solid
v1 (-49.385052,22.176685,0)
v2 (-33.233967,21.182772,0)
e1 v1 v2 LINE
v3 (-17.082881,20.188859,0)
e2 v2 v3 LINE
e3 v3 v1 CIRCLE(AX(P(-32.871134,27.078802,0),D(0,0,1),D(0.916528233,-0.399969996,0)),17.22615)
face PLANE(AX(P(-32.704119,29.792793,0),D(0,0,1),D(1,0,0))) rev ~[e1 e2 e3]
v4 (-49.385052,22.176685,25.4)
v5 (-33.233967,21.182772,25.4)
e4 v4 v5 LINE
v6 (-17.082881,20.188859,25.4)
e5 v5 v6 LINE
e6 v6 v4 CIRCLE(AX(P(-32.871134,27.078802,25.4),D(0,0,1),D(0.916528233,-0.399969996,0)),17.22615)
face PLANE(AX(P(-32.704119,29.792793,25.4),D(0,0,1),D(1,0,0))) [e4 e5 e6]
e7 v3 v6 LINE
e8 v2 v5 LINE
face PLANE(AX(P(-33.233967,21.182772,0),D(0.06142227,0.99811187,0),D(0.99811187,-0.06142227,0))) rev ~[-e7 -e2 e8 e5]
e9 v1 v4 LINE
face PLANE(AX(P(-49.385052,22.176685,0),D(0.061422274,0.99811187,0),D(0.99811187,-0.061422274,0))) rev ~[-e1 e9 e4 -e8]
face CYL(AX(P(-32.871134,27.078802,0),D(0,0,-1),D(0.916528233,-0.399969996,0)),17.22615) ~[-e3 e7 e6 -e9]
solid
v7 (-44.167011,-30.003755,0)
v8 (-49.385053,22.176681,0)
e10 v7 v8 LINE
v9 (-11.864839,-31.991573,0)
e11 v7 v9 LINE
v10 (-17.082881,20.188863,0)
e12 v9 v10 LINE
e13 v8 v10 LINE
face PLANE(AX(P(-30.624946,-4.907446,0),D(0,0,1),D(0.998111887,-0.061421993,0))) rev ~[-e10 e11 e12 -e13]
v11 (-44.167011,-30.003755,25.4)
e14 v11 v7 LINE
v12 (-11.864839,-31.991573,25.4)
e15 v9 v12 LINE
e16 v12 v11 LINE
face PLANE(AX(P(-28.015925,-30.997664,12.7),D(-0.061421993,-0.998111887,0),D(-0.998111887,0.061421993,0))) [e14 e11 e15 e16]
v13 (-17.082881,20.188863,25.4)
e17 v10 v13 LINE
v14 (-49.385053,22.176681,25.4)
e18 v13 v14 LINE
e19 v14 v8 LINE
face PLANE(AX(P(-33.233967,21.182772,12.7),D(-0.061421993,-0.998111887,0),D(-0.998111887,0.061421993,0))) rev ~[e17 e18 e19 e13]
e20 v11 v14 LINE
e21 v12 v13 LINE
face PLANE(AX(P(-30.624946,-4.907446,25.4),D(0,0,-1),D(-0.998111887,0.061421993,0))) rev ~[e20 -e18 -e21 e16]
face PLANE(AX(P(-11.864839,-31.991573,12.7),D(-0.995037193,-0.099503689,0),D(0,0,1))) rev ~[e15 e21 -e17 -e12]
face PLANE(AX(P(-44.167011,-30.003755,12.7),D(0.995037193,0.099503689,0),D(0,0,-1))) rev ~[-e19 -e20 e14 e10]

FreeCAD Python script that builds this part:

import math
import FreeCAD as App
import Part
import Sketcher
Q = App.Units.Quantity

doc = App.newDocument("Part")
params = doc.addObject("Spreadsheet::Sheet", "Params")
for row, (alias, value) in enumerate([
    ("pad1_length", "1 in"),
    ("sketch2_height", "1 in"),
], start=1):
    params.set(f"A{row}", alias)
    params.set(f"B{row}", "=" + value)
    params.setAlias(f"B{row}", alias)

body = doc.addObject("PartDesign::Body", "Body")

sketch1 = body.newObject("Sketcher::SketchObject", "Sketch")
sketch1.AttachmentSupport = (doc.getObject("XY_Plane"), [""])
sketch1.MapMode = "FlatFace"
sketch1.addGeometry(Part.ArcOfCircle(Part.Circle(App.Vector(-33, 27, 0), App.Vector(0, 0, 1), 17), math.radians(-24), math.radians(197)), False)
sketch1.addGeometry(Part.LineSegment(App.Vector(-49, 22, 0), App.Vector(-33, 21, 0)), False)
sketch1.addGeometry(Part.LineSegment(App.Vector(-33, 21, 0), App.Vector(-17, 20, 0)), False)
sketch1.addConstraint(Sketcher.Constraint("Coincident", 0, 2, 1, 1))
sketch1.addConstraint(Sketcher.Constraint("Coincident", 1, 2, 2, 1))
sketch1.addConstraint(Sketcher.Constraint("Coincident", 2, 2, 0, 1))
sketch1.addConstraint(Sketcher.Constraint("Parallel", 1, 2))
sketch1.addConstraint(Sketcher.Constraint("Equal", 1, 2))
sketch1.addConstraint(Sketcher.Constraint("Radius", 0, Q("17.22615 mm")))
sketch1.addConstraint(Sketcher.Constraint("Distance", 1, Q("16.181638 mm")))
sketch1.addConstraint(Sketcher.Constraint("DistanceX", 0, 2, -1, 1, Q("49.385052 mm")))
sketch1.addConstraint(Sketcher.Constraint("DistanceY", -1, 1, 1, 2, Q("21.182772 mm")))
sketch1.addConstraint(Sketcher.Constraint("DistanceX", 2, 2, -1, 1, Q("17.082881 mm")))
pad1 = body.newObject("PartDesign::Pad", "Pad")
pad1.Profile = sketch1
pad1.setExpression("Length", "Params.pad1_length")
body2 = doc.addObject("PartDesign::Body", "Body001")

sketch2 = body2.newObject("Sketcher::SketchObject", "Sketch001")
sketch2.Placement = App.Placement(App.Vector(-33.233967, 21.182772, 12.7), App.Rotation(App.Vector(0.998111887, -0.061421993, 0), App.Vector(0, 0, 1), App.Vector(-0.061421993, -0.998111887, 0), "ZXY"))
sketch2.addGeometry(Part.LineSegment(App.Vector(-16, 13, 0), App.Vector(-16, -13, 0)), False)
sketch2.addGeometry(Part.LineSegment(App.Vector(-16, -13, 0), App.Vector(16, -13, 0)), False)
sketch2.addGeometry(Part.LineSegment(App.Vector(16, -13, 0), App.Vector(16, 13, 0)), False)
sketch2.addGeometry(Part.LineSegment(App.Vector(16, 13, 0), App.Vector(-16, 13, 0)), False)
sketch2.addConstraint(Sketcher.Constraint("Coincident", 0, 2, 1, 1))
sketch2.addConstraint(Sketcher.Constraint("Coincident", 1, 2, 2, 1))
sketch2.addConstraint(Sketcher.Constraint("Coincident", 2, 2, 3, 1))
sketch2.addConstraint(Sketcher.Constraint("Coincident", 3, 2, 0, 1))
sketch2.addConstraint(Sketcher.Constraint("Vertical", 0))
sketch2.addConstraint(Sketcher.Constraint("Horizontal", 1))
sketch2.addConstraint(Sketcher.Constraint("Vertical", 2))
sketch2.addConstraint(Sketcher.Constraint("Horizontal", 3))
sketch2.addConstraint(Sketcher.Constraint("Symmetric", 0, 2, 2, 2, -1, 1))
sketch2.addConstraint(Sketcher.Constraint("DistanceY", 0, 2, 0, 1, Q("1 in")))
sketch2.addConstraint(Sketcher.Constraint("DistanceX", 1, 1, 1, 2, Q("32.363278 mm")))
sketch2.setExpression("Constraints[9]", "Params.sketch2_height")

sketch3 = body2.newObject("Sketcher::SketchObject", "Sketch002")
sketch3.Placement = App.Placement(App.Vector(-30.807614, -3.080761, 0), App.Rotation(App.Vector(-0.099503689, 0.995037193, 0), App.Vector(0, 0, 1), App.Vector(0.995037193, 0.099503689, 0), "ZXY"))
sketch3.addGeometry(Part.LineSegment(App.Vector(-28, 0, 0), App.Vector(24, 0, 0)), False)
sketch3.addConstraint(Sketcher.Constraint("Horizontal", 0))
sketch3.addConstraint(Sketcher.Constraint("PointOnObject", 0, 1, -1))
sketch3.addConstraint(Sketcher.Constraint("DistanceX", 0, 1, 0, 2, Q("52.440689 mm")))
sketch3.addConstraint(Sketcher.Constraint("DistanceX", 0, 1, -1, 1, Q("28.056141 mm")))
doc.recompute()

additivepipe = body2.newObject("PartDesign::AdditivePipe", "AdditivePipe")
additivepipe.Profile = sketch2
additivepipe.Spine = (sketch3, ["Edge1"])

doc.recompute()
